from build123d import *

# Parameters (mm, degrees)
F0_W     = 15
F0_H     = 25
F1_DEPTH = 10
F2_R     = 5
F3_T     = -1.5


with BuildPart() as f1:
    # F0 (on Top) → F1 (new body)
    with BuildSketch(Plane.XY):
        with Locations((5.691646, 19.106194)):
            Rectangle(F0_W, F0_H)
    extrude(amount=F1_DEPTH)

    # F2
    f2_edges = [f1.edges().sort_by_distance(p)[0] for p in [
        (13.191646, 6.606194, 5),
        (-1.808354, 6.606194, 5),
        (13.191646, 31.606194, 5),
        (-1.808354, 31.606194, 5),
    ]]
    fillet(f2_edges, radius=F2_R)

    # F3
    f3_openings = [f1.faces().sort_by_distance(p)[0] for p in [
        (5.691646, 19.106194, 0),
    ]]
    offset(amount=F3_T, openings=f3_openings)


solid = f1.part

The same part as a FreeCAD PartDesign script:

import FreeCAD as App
import Part
import Sketcher


def edges_at(feature, points):
    """Names of the edges that pass closest to the given points."""
    edges = feature.Shape.Edges
    near = lambda p: min(range(len(edges)), key=lambda i: edges[i].distToShape(Part.Vertex(*p))[0])
    return sorted({f"Edge{near(p) + 1}" for p in points})


def faces_at(feature, points):
    """Names of the faces that lie closest to the given points."""
    faces = feature.Shape.Faces
    near = lambda p: min(range(len(faces)), key=lambda i: faces[i].distToShape(Part.Vertex(*p))[0])
    return sorted({f"Face{near(p) + 1}" for p in points})


def add_polygon(sketch, points):
    """Adds a closed chain of lines whose ends are joined by coincident constraints."""
    first, n = sketch.GeometryCount, len(points)
    for a, b in zip(points, points[1:] + points[:1]):
        sketch.addGeometry(Part.LineSegment(App.Vector(*a, 0), App.Vector(*b, 0)), False)
    for i in range(n):
        sketch.addConstraint(Sketcher.Constraint("Coincident", first + i, 2, first + (i + 1) % n, 1))

doc = App.newDocument("Part")
body = doc.addObject("PartDesign::Body", "Body")

# Sketch on XY plane
sketch1 = body.newObject("Sketcher::SketchObject", "Sketch")
sketch1.AttachmentSupport = (doc.getObject("XY_Plane"), [""])
sketch1.MapMode = "FlatFace"
add_polygon(sketch1, [(-2, 32), (-2, 7), (13, 7), (13, 32)])  # lines 0-3
sketch1.addConstraint([
    Sketcher.Constraint("Vertical", 0),
    Sketcher.Constraint("Horizontal", 1),
    Sketcher.Constraint("Vertical", 2),
    Sketcher.Constraint("Horizontal", 3),
    Sketcher.Constraint("DistanceX", 1, 1, 1, 2, 15.0),
    Sketcher.Constraint("DistanceY", 0, 2, 0, 1, 25.0),
    Sketcher.Constraint("DistanceX", 0, 2, -1, 1, 1.808354),
    Sketcher.Constraint("DistanceY", -1, 1, 0, 2, 6.606194),
])
pad1 = body.newObject("PartDesign::Pad", "Pad")
pad1.Profile = sketch1
pad1.Length = 10
doc.recompute()

fillet = body.newObject("PartDesign::Fillet", "Fillet")
fillet.Base = (pad1, edges_at(pad1, [
    (13.192, 6.606, 5),
    (-1.808, 6.606, 5),
    (13.192, 31.606, 5),
    (-1.808, 31.606, 5),
]))
fillet.Radius = 5
doc.recompute()

thickness = body.newObject("PartDesign::Thickness", "Thickness")
thickness.Base = (fillet, faces_at(fillet, [(5.692, 19.106, 0)]))
thickness.Value = 1.5
thickness.Reversed = True
thickness.Join = "Arc"

doc.recompute()
